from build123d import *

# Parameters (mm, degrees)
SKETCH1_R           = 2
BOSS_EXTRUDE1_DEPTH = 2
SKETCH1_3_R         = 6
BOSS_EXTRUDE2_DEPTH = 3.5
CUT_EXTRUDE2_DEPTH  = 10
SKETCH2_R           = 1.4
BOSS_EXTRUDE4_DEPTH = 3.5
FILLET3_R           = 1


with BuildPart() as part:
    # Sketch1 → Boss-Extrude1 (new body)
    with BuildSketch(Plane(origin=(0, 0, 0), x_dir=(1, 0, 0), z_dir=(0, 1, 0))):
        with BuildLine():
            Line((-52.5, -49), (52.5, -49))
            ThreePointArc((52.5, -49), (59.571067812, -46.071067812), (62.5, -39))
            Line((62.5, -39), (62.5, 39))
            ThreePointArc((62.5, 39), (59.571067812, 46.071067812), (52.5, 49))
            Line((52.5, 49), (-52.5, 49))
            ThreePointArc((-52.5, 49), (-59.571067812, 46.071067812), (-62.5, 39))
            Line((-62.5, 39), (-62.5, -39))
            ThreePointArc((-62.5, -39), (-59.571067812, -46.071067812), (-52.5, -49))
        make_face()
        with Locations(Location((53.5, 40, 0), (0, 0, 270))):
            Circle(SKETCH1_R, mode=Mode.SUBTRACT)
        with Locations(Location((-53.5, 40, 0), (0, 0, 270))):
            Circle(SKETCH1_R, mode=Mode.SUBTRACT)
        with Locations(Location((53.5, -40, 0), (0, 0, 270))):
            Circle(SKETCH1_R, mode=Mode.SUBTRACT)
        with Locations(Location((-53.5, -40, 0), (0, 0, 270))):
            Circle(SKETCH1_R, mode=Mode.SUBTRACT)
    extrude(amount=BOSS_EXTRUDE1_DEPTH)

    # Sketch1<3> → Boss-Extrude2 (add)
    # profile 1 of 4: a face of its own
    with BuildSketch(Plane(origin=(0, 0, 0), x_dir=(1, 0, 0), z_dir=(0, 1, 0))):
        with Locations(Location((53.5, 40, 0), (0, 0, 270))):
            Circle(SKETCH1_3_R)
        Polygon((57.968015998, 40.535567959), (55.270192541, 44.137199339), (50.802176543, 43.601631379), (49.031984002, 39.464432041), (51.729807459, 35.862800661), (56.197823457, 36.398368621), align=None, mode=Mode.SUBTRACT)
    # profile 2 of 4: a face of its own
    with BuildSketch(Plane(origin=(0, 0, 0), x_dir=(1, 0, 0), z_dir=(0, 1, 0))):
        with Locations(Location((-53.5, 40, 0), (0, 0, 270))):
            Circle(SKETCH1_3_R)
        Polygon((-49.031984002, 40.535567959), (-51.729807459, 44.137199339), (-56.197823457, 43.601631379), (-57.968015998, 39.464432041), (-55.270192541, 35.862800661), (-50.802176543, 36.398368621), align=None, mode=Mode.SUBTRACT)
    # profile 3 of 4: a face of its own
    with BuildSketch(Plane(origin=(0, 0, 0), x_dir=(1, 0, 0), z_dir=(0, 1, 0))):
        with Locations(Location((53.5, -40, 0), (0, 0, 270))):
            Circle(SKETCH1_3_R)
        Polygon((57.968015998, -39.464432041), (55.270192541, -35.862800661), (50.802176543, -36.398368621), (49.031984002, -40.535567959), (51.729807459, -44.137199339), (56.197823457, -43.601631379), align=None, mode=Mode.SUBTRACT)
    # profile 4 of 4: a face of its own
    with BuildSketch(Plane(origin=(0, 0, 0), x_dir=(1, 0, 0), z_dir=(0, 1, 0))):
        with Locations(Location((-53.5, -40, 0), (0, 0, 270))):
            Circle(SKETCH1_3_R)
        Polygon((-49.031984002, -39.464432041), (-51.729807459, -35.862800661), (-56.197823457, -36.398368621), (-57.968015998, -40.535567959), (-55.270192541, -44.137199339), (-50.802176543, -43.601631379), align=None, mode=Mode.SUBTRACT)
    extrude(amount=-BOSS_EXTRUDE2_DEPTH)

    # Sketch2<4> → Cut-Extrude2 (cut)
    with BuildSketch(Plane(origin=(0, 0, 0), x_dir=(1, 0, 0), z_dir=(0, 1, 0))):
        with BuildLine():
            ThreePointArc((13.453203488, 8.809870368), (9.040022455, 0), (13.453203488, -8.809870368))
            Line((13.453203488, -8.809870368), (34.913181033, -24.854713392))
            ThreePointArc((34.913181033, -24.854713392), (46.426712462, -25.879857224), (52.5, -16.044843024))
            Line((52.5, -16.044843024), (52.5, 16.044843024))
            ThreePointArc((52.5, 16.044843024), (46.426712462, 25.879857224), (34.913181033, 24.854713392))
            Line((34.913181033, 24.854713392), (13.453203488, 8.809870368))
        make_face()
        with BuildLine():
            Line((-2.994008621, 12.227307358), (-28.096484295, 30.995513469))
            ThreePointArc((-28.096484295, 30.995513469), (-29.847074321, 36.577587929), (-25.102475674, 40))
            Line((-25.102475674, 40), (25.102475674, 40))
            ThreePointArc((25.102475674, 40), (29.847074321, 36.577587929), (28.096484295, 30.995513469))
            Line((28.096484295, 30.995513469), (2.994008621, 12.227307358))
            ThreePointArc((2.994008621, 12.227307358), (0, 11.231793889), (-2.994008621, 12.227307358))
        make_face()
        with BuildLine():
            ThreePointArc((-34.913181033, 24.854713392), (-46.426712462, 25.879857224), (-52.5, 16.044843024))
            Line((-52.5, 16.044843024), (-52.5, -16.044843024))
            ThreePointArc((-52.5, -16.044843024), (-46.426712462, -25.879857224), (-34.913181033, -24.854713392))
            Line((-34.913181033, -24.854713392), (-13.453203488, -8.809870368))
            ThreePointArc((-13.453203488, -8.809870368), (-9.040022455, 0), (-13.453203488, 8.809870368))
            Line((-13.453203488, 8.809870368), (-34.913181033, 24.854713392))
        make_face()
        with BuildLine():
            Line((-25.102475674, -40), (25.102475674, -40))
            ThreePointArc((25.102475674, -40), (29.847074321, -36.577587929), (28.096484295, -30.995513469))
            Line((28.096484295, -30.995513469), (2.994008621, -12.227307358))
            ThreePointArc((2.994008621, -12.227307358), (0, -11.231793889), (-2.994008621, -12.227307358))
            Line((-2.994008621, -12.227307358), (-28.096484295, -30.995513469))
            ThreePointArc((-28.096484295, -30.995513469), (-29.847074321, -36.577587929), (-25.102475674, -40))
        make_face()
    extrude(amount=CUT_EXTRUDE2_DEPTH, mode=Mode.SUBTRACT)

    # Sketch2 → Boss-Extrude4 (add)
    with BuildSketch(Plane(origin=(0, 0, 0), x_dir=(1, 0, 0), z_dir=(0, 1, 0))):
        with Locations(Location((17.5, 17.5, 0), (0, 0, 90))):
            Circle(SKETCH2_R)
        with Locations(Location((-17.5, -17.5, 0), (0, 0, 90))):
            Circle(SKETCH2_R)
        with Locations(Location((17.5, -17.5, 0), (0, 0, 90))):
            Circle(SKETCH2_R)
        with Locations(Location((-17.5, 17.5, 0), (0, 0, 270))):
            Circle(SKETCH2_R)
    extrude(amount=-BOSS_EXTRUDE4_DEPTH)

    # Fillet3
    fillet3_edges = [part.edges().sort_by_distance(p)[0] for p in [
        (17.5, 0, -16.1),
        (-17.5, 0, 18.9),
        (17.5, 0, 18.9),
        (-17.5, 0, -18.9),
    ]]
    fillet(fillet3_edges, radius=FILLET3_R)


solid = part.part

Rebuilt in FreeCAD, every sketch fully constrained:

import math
import FreeCAD as App
import Part
import Sketcher

V = App.Vector
Q = App.Units.Quantity


def edges_at(feature, points):
    """Names of the edges that pass closest to the given points."""
    edges = feature.Shape.Edges
    near = lambda p: min(range(len(edges)), key=lambda i: edges[i].distToShape(Part.Vertex(*p))[0])
    return sorted({f"Edge{near(p) + 1}" for p in points})

doc = App.newDocument("Part")
body = doc.addObject("PartDesign::Body", "Body")

# Sketch on XZ plane
sketch1 = body.newObject("Sketcher::SketchObject", "Sketch")
sketch1.AttachmentSupport = (doc.getObject("XZ_Plane"), [""])
sketch1.MapMode = "FlatFace"
sketch1.addGeometry([
    Part.LineSegment(V(-52.5, 49, 0), V(52.5, 49, 0)),  # 0
    Part.ArcOfCircle(Part.Circle(V(52.5, 39, 0), V(0, 0, 1), 10), math.radians(0), math.radians(90)),  # 1
    Part.LineSegment(V(62.5, 39, 0), V(62.5, -39, 0)),  # 2
    Part.ArcOfCircle(Part.Circle(V(52.5, -39, 0), V(0, 0, 1), 10), math.radians(-90), math.radians(0)),  # 3
    Part.LineSegment(V(52.5, -49, 0), V(-52.5, -49, 0)),  # 4
    Part.ArcOfCircle(Part.Circle(V(-52.5, -39, 0), V(0, 0, 1), 10), math.radians(180), math.radians(270)),  # 5
    Part.LineSegment(V(-62.5, -39, 0), V(-62.5, 39, 0)),  # 6
    Part.ArcOfCircle(Part.Circle(V(-52.5, 39, 0), V(0, 0, 1), 10), math.radians(90), math.radians(180)),  # 7
    Part.Circle(V(-53.5, 40, 0), V(0, 0, 1), 2),  # 8
    Part.Circle(V(53.5, 40, 0), V(0, 0, 1), 2),  # 9
    Part.Circle(V(-53.5, -40, 0), V(0, 0, 1), 2),  # 10
    Part.Circle(V(53.5, -40, 0), V(0, 0, 1), 2),  # 11
], False)
sketch1.addConstraint([
    Sketcher.Constraint("Tangent", 0, 2, 1, 2),
    Sketcher.Constraint("Tangent", 1, 1, 2, 1),
    Sketcher.Constraint("Tangent", 2, 2, 3, 2),
    Sketcher.Constraint("Tangent", 3, 1, 4, 1),
    Sketcher.Constraint("Tangent", 4, 2, 5, 2),
    Sketcher.Constraint("Tangent", 5, 1, 6, 1),
    Sketcher.Constraint("Tangent", 6, 2, 7, 2),
    Sketcher.Constraint("Tangent", 7, 1, 0, 1),
    Sketcher.Constraint("Horizontal", 0),
    Sketcher.Constraint("Vertical", 2),
    Sketcher.Constraint("Horizontal", 4),
    Sketcher.Constraint("Vertical", 6),
    Sketcher.Constraint("Equal", 1, 3),
    Sketcher.Constraint("Equal", 3, 5),
    Sketcher.Constraint("Equal", 5, 7),
    Sketcher.Constraint("Equal", 8, 9),
    Sketcher.Constraint("Equal", 9, 10),
    Sketcher.Constraint("Equal", 10, 11),
    Sketcher.Constraint("Symmetric", 1, 3, 5, 3, -1, 1),
    Sketcher.Constraint("Symmetric", 9, 3, 10, 3, -1, 1),
    Sketcher.Constraint("Symmetric", 8, 3, 11, 3, -1, 1),
    Sketcher.Constraint("Symmetric", 8, 3, 9, 3, -2),
    Sketcher.Constraint("Diameter", 8, Q("4 mm")),
    Sketcher.Constraint("Radius", 1, Q("10 mm")),
    Sketcher.Constraint("DistanceX", 0, 1, 0, 2, Q("105 mm")),
    Sketcher.Constraint("DistanceY", 2, 2, 2, 1, Q("78 mm")),
    Sketcher.Constraint("DistanceY", -1, 1, 8, 3, Q("40 mm")),
    Sketcher.Constraint("DistanceX", 8, 3, 7, 3, Q("1 mm")),
])
pad1 = body.newObject("PartDesign::Pad", "Pad")
pad1.Profile = sketch1
pad1.Length = 2
pad1.Reversed = True

# Sketch on XZ plane
sketch2 = body.newObject("Sketcher::SketchObject", "Sketch001")
sketch2.AttachmentSupport = (doc.getObject("XZ_Plane"), [""])
sketch2.MapMode = "FlatFace"
sketch2.addGeometry([
    Part.Circle(V(53.5, -40, 0), V(0, 0, 1), 6),  # 0
    Part.LineSegment(V(55.270193, -44.137199, 0), V(57.968016, -40.535568, 0)),  # 1
    Part.LineSegment(V(57.968016, -40.535568, 0), V(56.197823, -36.398369, 0)),  # 2
    Part.LineSegment(V(56.197823, -36.398369, 0), V(51.729807, -35.862801, 0)),  # 3
    Part.LineSegment(V(51.729807, -35.862801, 0), V(49.031984, -39.464432, 0)),  # 4
    Part.LineSegment(V(49.031984, -39.464432, 0), V(50.802177, -43.601631, 0)),  # 5
    Part.LineSegment(V(50.802177, -43.601631, 0), V(55.270193, -44.137199, 0)),  # 6
    Part.Circle(V(-53.5, -40, 0), V(0, 0, 1), 6),  # 7
    Part.LineSegment(V(-51.729807, -44.137199, 0), V(-49.031984, -40.535568, 0)),  # 8
    Part.LineSegment(V(-49.031984, -40.535568, 0), V(-50.802177, -36.398369, 0)),  # 9
    Part.LineSegment(V(-50.802177, -36.398369, 0), V(-55.270193, -35.862801, 0)),  # 10
    Part.LineSegment(V(-55.270193, -35.862801, 0), V(-57.968016, -39.464432, 0)),  # 11
    Part.LineSegment(V(-57.968016, -39.464432, 0), V(-56.197823, -43.601631, 0)),  # 12
    Part.LineSegment(V(-56.197823, -43.601631, 0), V(-51.729807, -44.137199, 0)),  # 13
    Part.Circle(V(53.5, 40, 0), V(0, 0, 1), 6),  # 14
    Part.LineSegment(V(55.270193, 35.862801, 0), V(57.968016, 39.464432, 0)),  # 15
    Part.LineSegment(V(57.968016, 39.464432, 0), V(56.197823, 43.601631, 0)),  # 16
    Part.LineSegment(V(56.197823, 43.601631, 0), V(51.729807, 44.137199, 0)),  # 17
    Part.LineSegment(V(51.729807, 44.137199, 0), V(49.031984, 40.535568, 0)),  # 18
    Part.LineSegment(V(49.031984, 40.535568, 0), V(50.802177, 36.398369, 0)),  # 19
    Part.LineSegment(V(50.802177, 36.398369, 0), V(55.270193, 35.862801, 0)),  # 20
    Part.Circle(V(-53.5, 40, 0), V(0, 0, 1), 6),  # 21
    Part.LineSegment(V(-51.729807, 35.862801, 0), V(-49.031984, 39.464432, 0)),  # 22
    Part.LineSegment(V(-49.031984, 39.464432, 0), V(-50.802177, 43.601631, 0)),  # 23
    Part.LineSegment(V(-50.802177, 43.601631, 0), V(-55.270193, 44.137199, 0)),  # 24
    Part.LineSegment(V(-55.270193, 44.137199, 0), V(-57.968016, 40.535568, 0)),  # 25
    Part.LineSegment(V(-57.968016, 40.535568, 0), V(-56.197823, 36.398369, 0)),  # 26
    Part.LineSegment(V(-56.197823, 36.398369, 0), V(-51.729807, 35.862801, 0)),  # 27
], False)
sketch2.addConstraint([
    Sketcher.Constraint("Coincident", 1, 2, 2, 1),
    Sketcher.Constraint("Coincident", 2, 2, 3, 1),
    Sketcher.Constraint("Coincident", 3, 2, 4, 1),
    Sketcher.Constraint("Coincident", 4, 2, 5, 1),
    Sketcher.Constraint("Coincident", 5, 2, 6, 1),
    Sketcher.Constraint("Coincident", 6, 2, 1, 1),
    Sketcher.Constraint("Coincident", 8, 2, 9, 1),
    Sketcher.Constraint("Coincident", 9, 2, 10, 1),
    Sketcher.Constraint("Coincident", 10, 2, 11, 1),
    Sketcher.Constraint("Coincident", 11, 2, 12, 1),
    Sketcher.Constraint("Coincident", 12, 2, 13, 1),
    Sketcher.Constraint("Coincident", 13, 2, 8, 1),
    Sketcher.Constraint("Coincident", 15, 2, 16, 1),
    Sketcher.Constraint("Coincident", 16, 2, 17, 1),
    Sketcher.Constraint("Coincident", 17, 2, 18, 1),
    Sketcher.Constraint("Coincident", 18, 2, 19, 1),
    Sketcher.Constraint("Coincident", 19, 2, 20, 1),
    Sketcher.Constraint("Coincident", 20, 2, 15, 1),
    Sketcher.Constraint("Coincident", 22, 2, 23, 1),
    Sketcher.Constraint("Coincident", 23, 2, 24, 1),
    Sketcher.Constraint("Coincident", 24, 2, 25, 1),
    Sketcher.Constraint("Coincident", 25, 2, 26, 1),
    Sketcher.Constraint("Coincident", 26, 2, 27, 1),
    Sketcher.Constraint("Coincident", 27, 2, 22, 1),
    Sketcher.Constraint("Equal", 0, 7),
    Sketcher.Constraint("Equal", 7, 14),
    Sketcher.Constraint("Equal", 14, 21),
    Sketcher.Constraint("Symmetric", 7, 3, 14, 3, -1, 1),
    Sketcher.Constraint("Symmetric", 0, 3, 21, 3, -1, 1),
    Sketcher.Constraint("Symmetric", 11, 2, 15, 2, -1, 1),
    Sketcher.Constraint("Symmetric", 12, 2, 16, 2, -1, 1),
    Sketcher.Constraint("Symmetric", 13, 2, 17, 2, -1, 1),
    Sketcher.Constraint("Symmetric", 8, 2, 18, 2, -1, 1),
    Sketcher.Constraint("Symmetric", 9, 2, 19, 2, -1, 1),
    Sketcher.Constraint("Symmetric", 10, 2, 20, 2, -1, 1),
    Sketcher.Constraint("Symmetric", 4, 2, 22, 2, -1, 1),
    Sketcher.Constraint("Symmetric", 5, 2, 23, 2, -1, 1),
    Sketcher.Constraint("Symmetric", 6, 2, 24, 2, -1, 1),
    Sketcher.Constraint("Symmetric", 1, 2, 25, 2, -1, 1),
    Sketcher.Constraint("Symmetric", 2, 2, 26, 2, -1, 1),
    Sketcher.Constraint("Symmetric", 3, 2, 27, 2, -1, 1),
    Sketcher.Constraint("Symmetric", 0, 3, 7, 3, -2),
    Sketcher.Constraint("Parallel", 1, 4),
    Sketcher.Constraint("Parallel", 2, 5),
    Sketcher.Constraint("Parallel", 3, 6),
    Sketcher.Constraint("Parallel", 4, 8),
    Sketcher.Constraint("Parallel", 5, 9),
    Sketcher.Constraint("Parallel", 6, 10),
    Sketcher.Constraint("Parallel", 8, 11),
    Sketcher.Constraint("Parallel", 9, 12),
    Sketcher.Constraint("Parallel", 10, 13),
    Sketcher.Constraint("Horizontal", 1, 2, 8, 2),
    Sketcher.Constraint("Horizontal", 2, 2, 9, 2),
    Sketcher.Constraint("Horizontal", 3, 2, 10, 2),
    Sketcher.Constraint("Horizontal", 4, 2, 11, 2),
    Sketcher.Constraint("Horizontal", 5, 2, 12, 2),
    Sketcher.Constraint("Vertical", 1, 2, 15, 2),
    Sketcher.Constraint("Vertical", 2, 2, 16, 2),
    Sketcher.Constraint("Equal", 1, 2),
    Sketcher.Constraint("Equal", 2, 3),
    Sketcher.Constraint("Diameter", 0, Q("12 mm")),
    Sketcher.Constraint("DistanceY", 0, 3, -1, 1, Q("40 mm")),
    Sketcher.Constraint("DistanceX", 7, 3, 0, 3, Q("107 mm")),
    Sketcher.Constraint("DistanceY", 2, 2, 16, 2, Q("80 mm")),
    Sketcher.Constraint("Distance", 1, Q("4.5 mm")),
    Sketcher.Constraint("DistanceY", 3, 2, -1, 1, Q("35.862801 mm")),
    Sketcher.Constraint("DistanceY", 1, 2, 2, 2, Q("4.137199 mm")),
    Sketcher.Constraint("DistanceY", 2, 2, -1, 1, Q("36.398369 mm")),
    Sketcher.Constraint("DistanceX", 8, 2, 4, 2, Q("98.063968 mm")),
])
pad2 = body.newObject("PartDesign::Pad", "Pad001")
pad2.Profile = sketch2
pad2.Length = 3.5

# Sketch on XZ plane
sketch3 = body.newObject("Sketcher::SketchObject", "Sketch002")
sketch3.AttachmentSupport = (doc.getObject("XZ_Plane"), [""])
sketch3.MapMode = "FlatFace"
sketch3.addGeometry([
    Part.ArcOfCircle(Part.Circle(V(20.040022, 0, 0), V(0, 0, 1), 11), math.radians(126.784126), math.radians(233.215874)),  # 0
    Part.LineSegment(V(13.453203, 8.80987, 0), V(34.913181, 24.854713, 0)),  # 1
    Part.ArcOfCircle(Part.Circle(V(41.5, 16.044843, 0), V(0, 0, 1), 11), math.radians(0), math.radians(126.784126)),  # 2
    Part.LineSegment(V(52.5, 16.044843, 0), V(52.5, -16.044843, 0)),  # 3
    Part.ArcOfCircle(Part.Circle(V(41.5, -16.044843, 0), V(0, 0, 1), 11), math.radians(-126.784126), math.radians(0)),  # 4
    Part.LineSegment(V(34.913181, -24.854713, 0), V(13.453203, -8.80987, 0)),  # 5
    Part.LineSegment(V(-28.096484, -30.995513, 0), V(-2.994009, -12.227307, 0)),  # 6
    Part.ArcOfCircle(Part.Circle(V(0, -16.231794, 0), V(0, 0, 1), 5), math.radians(53.215874), math.radians(126.784126)),  # 7
    Part.LineSegment(V(2.994009, -12.227307, 0), V(28.096484, -30.995513, 0)),  # 8
    Part.ArcOfCircle(Part.Circle(V(25.102476, -35, 0), V(0, 0, 1), 5), math.radians(-90), math.radians(53.215874)),  # 9
    Part.LineSegment(V(25.102476, -40, 0), V(-25.102476, -40, 0)),  # 10
    Part.ArcOfCircle(Part.Circle(V(-25.102476, -35, 0), V(0, 0, 1), 5), math.radians(126.784126), math.radians(270)),  # 11
    Part.ArcOfCircle(Part.Circle(V(-41.5, -16.044843, 0), V(0, 0, 1), 11), math.radians(180), math.radians(306.784126)),  # 12
    Part.LineSegment(V(-52.5, -16.044843, 0), V(-52.5, 16.044843, 0)),  # 13
    Part.ArcOfCircle(Part.Circle(V(-41.5, 16.044843, 0), V(0, 0, 1), 11), math.radians(53.215874), math.radians(180)),  # 14
    Part.LineSegment(V(-34.913181, 24.854713, 0), V(-13.453203, 8.80987, 0)),  # 15
    Part.ArcOfCircle(Part.Circle(V(-20.040022, 0, 0), V(0, 0, 1), 11), math.radians(-53.215874), math.radians(53.215874)),  # 16
    Part.LineSegment(V(-13.453203, -8.80987, 0), V(-34.913181, -24.854713, 0)),  # 17
    Part.LineSegment(V(-25.102476, 40, 0), V(25.102476, 40, 0)),  # 18
    Part.ArcOfCircle(Part.Circle(V(25.102476, 35, 0), V(0, 0, 1), 5), math.radians(-53.215874), math.radians(90)),  # 19
    Part.LineSegment(V(28.096484, 30.995513, 0), V(2.994009, 12.227307, 0)),  # 20
    Part.ArcOfCircle(Part.Circle(V(0, 16.231794, 0), V(0, 0, 1), 5), math.radians(-126.784126), math.radians(-53.215874)),  # 21
    Part.LineSegment(V(-2.994009, 12.227307, 0), V(-28.096484, 30.995513, 0)),  # 22
    Part.ArcOfCircle(Part.Circle(V(-25.102476, 35, 0), V(0, 0, 1), 5), math.radians(90), math.radians(233.215874)),  # 23
], False)
sketch3.addConstraint([
    Sketcher.Constraint("Tangent", 0, 1, 1, 1),
    Sketcher.Constraint("Tangent", 1, 2, 2, 2),
    Sketcher.Constraint("Tangent", 2, 1, 3, 1),
    Sketcher.Constraint("Tangent", 3, 2, 4, 2),
    Sketcher.Constraint("Tangent", 4, 1, 5, 1),
    Sketcher.Constraint("Tangent", 5, 2, 0, 2),
    Sketcher.Constraint("Tangent", 6, 2, 7, 2),
    Sketcher.Constraint("Tangent", 7, 1, 8, 1),
    Sketcher.Constraint("Tangent", 8, 2, 9, 2),
    Sketcher.Constraint("Tangent", 9, 1, 10, 1),
    Sketcher.Constraint("Tangent", 10, 2, 11, 2),
    Sketcher.Constraint("Tangent", 11, 1, 6, 1),
    Sketcher.Constraint("Tangent", 12, 1, 13, 1),
    Sketcher.Constraint("Tangent", 13, 2, 14, 2),
    Sketcher.Constraint("Tangent", 14, 1, 15, 1),
    Sketcher.Constraint("Tangent", 15, 2, 16, 2),
    Sketcher.Constraint("Tangent", 16, 1, 17, 1),
    Sketcher.Constraint("Tangent", 17, 2, 12, 2),
    Sketcher.Constraint("Tangent", 18, 2, 19, 2),
    Sketcher.Constraint("Tangent", 19, 1, 20, 1),
    Sketcher.Constraint("Tangent", 20, 2, 21, 2),
    Sketcher.Constraint("Tangent", 21, 1, 22, 1),
    Sketcher.Constraint("Tangent", 22, 2, 23, 2),
    Sketcher.Constraint("Tangent", 23, 1, 18, 1),
    Sketcher.Constraint("Vertical", 3),
    Sketcher.Constraint("Horizontal", 10),
    Sketcher.Constraint("Vertical", 13),
    Sketcher.Constraint("Horizontal", 18),
    Sketcher.Constraint("Equal", 0, 2),
    Sketcher.Constraint("Equal", 2, 4),
    Sketcher.Constraint("Equal", 7, 9),
    Sketcher.Constraint("Equal", 9, 11),
    Sketcher.Constraint("Equal", 4, 12),
    Sketcher.Constraint("Equal", 12, 14),
    Sketcher.Constraint("Equal", 14, 16),
    Sketcher.Constraint("Equal", 11, 19),
    Sketcher.Constraint("Equal", 19, 21),
    Sketcher.Constraint("Equal", 21, 23),
    Sketcher.Constraint("Symmetric", 2, 3, 12, 3, -1, 1),
    Sketcher.Constraint("Symmetric", 0, 3, 16, 3, -1, 1),
    Sketcher.Constraint("Symmetric", 11, 3, 19, 3, -1, 1),
    Sketcher.Constraint("Symmetric", 7, 3, 21, 3, -1, 1),
    Sketcher.Constraint("Symmetric", 6, 2, 7, 1, -2),
    Sketcher.Constraint("Symmetric", 1, 2, 14, 1, -2),
    Sketcher.Constraint("Parallel", 1, 6),
    Sketcher.Constraint("Parallel", 5, 8),
    Sketcher.Constraint("Parallel", 15, 22),
    Sketcher.Constraint("Radius", 0, Q("11 mm")),
    Sketcher.Constraint("Radius", 7, Q("5 mm")),
    Sketcher.Constraint("DistanceY", 9, 3, -1, 1, Q("35 mm")),
    Sketcher.Constraint("DistanceX", 12, 3, 4, 3, Q("83 mm")),
    Sketcher.Constraint("DistanceX", 10, 2, 10, 1, Q("50.204951 mm")),
    Sketcher.Constraint("DistanceX", 11, 3, 0, 3, Q("45.142498 mm")),
    Sketcher.Constraint("DistanceY", 8, 2, 4, 1, Q("6.1408 mm")),
])
pocket1 = body.newObject("PartDesign::Pocket", "Pocket")
pocket1.Profile = sketch3
pocket1.Length = 10

# Sketch on XZ plane
sketch4 = body.newObject("Sketcher::SketchObject", "Sketch003")
sketch4.AttachmentSupport = (doc.getObject("XZ_Plane"), [""])
sketch4.MapMode = "FlatFace"
sketch4.addGeometry([
    Part.Circle(V(17.5, -17.5, 0), V(0, 0, 1), 1.4),
    Part.Circle(V(-17.5, 17.5, 0), V(0, 0, 1), 1.4),
    Part.Circle(V(17.5, 17.5, 0), V(0, 0, 1), 1.4),
    Part.Circle(V(-17.5, -17.5, 0), V(0, 0, 1), 1.4),
], False)
sketch4.addConstraint([
    Sketcher.Constraint("Equal", 0, 1),
    Sketcher.Constraint("Equal", 1, 2),
    Sketcher.Constraint("Equal", 2, 3),
    Sketcher.Constraint("Symmetric", 0, 3, 1, 3, -1, 1),
    Sketcher.Constraint("Symmetric", 2, 3, 3, 3, -1, 1),
    Sketcher.Constraint("Symmetric", 1, 3, 2, 3, -2),
    Sketcher.Constraint("Diameter", 0, Q("2.8 mm")),
    Sketcher.Constraint("DistanceX", 1, 3, 0, 3, Q("35 mm")),
    Sketcher.Constraint("DistanceY", 0, 3, 1, 3, Q("35 mm")),
])
pad3 = body.newObject("PartDesign::Pad", "Pad002")
pad3.Profile = sketch4
pad3.Length = 3.5
doc.recompute()

fillet = body.newObject("PartDesign::Fillet", "Fillet")
fillet.Base = (pad3, edges_at(pad3, [
    (17.5, 0, -16.1),
    (-17.5, 0, 18.9),
    (17.5, 0, 18.9),
    (-17.5, 0, -18.9),
]))
fillet.Radius = 1

doc.recompute()
